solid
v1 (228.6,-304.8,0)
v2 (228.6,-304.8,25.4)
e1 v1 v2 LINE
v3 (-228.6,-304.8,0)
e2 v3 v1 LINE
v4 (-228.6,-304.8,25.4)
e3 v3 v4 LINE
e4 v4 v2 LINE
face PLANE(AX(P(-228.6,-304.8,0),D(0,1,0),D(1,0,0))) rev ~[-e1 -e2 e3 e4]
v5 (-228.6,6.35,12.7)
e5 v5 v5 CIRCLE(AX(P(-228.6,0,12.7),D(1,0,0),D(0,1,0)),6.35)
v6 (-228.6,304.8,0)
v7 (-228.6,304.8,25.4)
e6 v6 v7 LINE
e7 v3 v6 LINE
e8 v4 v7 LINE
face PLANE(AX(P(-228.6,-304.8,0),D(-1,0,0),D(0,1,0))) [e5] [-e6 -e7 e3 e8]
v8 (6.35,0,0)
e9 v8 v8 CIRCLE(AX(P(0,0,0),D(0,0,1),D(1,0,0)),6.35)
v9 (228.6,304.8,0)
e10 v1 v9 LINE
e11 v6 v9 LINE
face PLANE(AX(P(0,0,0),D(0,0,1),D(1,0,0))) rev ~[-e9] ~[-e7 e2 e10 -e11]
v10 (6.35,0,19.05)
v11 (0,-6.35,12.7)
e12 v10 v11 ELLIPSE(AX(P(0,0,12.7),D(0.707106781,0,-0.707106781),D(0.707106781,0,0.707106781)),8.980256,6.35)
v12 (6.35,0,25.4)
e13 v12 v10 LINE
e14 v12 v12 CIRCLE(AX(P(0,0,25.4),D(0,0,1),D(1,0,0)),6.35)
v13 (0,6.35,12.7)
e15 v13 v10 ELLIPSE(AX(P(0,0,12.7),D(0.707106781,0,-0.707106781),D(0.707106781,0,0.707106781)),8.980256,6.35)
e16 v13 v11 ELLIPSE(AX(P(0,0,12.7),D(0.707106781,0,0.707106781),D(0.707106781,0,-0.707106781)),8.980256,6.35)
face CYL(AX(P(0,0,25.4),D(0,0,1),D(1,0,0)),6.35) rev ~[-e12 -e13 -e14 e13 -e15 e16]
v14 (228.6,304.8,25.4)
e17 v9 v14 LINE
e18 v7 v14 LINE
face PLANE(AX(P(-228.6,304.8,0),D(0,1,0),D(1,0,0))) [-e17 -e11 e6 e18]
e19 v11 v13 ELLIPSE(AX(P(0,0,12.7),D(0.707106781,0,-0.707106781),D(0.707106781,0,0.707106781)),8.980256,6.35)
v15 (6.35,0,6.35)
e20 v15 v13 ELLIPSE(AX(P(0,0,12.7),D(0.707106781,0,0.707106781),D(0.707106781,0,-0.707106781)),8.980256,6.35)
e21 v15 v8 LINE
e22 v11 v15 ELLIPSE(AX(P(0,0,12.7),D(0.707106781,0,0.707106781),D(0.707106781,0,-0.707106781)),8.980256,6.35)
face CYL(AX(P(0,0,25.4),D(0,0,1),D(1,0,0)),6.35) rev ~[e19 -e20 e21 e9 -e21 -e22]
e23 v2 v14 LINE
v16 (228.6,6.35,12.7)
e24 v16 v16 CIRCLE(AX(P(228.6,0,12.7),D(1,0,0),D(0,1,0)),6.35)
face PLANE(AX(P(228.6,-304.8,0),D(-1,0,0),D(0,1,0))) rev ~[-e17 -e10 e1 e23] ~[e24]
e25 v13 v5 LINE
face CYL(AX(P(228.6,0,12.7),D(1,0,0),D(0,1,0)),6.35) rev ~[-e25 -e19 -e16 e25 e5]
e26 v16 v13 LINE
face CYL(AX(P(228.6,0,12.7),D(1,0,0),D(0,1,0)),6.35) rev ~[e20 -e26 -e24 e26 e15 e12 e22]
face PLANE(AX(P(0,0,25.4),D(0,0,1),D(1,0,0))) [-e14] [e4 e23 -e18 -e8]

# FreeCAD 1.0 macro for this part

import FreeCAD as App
import Part
import Sketcher
from FreeCAD import Vector
Q = App.Units.Quantity

doc = App.newDocument("Part")
body = doc.addObject("PartDesign::Body", "Body")

# Sketch on XY plane
sketch1 = body.newObject("Sketcher::SketchObject", "Sketch")
sketch1.AttachmentSupport = (doc.getObject("XY_Plane"), [""])
sketch1.MapMode = "FlatFace"
sketch1.addGeometry([
    Part.LineSegment(Vector(-229, 305, 0), Vector(-229, -305, 0)),
    Part.LineSegment(Vector(-229, -305, 0), Vector(229, -305, 0)),
    Part.LineSegment(Vector(229, -305, 0), Vector(229, 305, 0)),
    Part.LineSegment(Vector(229, 305, 0), Vector(-229, 305, 0)),
], False)
sketch1.addConstraint([
    Sketcher.Constraint("Coincident", 0, 2, 1, 1),
    Sketcher.Constraint("Coincident", 1, 2, 2, 1),
    Sketcher.Constraint("Coincident", 2, 2, 3, 1),
    Sketcher.Constraint("Coincident", 3, 2, 0, 1),
    Sketcher.Constraint("Vertical", 0),
    Sketcher.Constraint("Horizontal", 1),
    Sketcher.Constraint("Vertical", 2),
    Sketcher.Constraint("Horizontal", 3),
    Sketcher.Constraint("Symmetric", 0, 2, 2, 2, -1, 1),
    Sketcher.Constraint("DistanceX", 1, 1, 1, 2, Q("18 in")),
    Sketcher.Constraint("DistanceY", 0, 2, 0, 1, Q("24 in")),
])
pad1 = body.newObject("PartDesign::Pad", "Pad")
pad1.Profile = sketch1
pad1.Length = Q("1 in")

# Sketch on YZ plane
sketch2 = body.newObject("Sketcher::SketchObject", "Sketch001")
sketch2.AttachmentSupport = (doc.getObject("YZ_Plane"), [""])
sketch2.MapMode = "FlatFace"
sketch2.AttachmentOffset = App.Placement(Vector(0, 0, 9 * 25.4), App.Rotation())
sketch2.addGeometry(Part.Circle(Vector(0, 13, 0), Vector(0, 0, 1), 6), False)
sketch2.addConstraint([
    Sketcher.Constraint("PointOnObject", 0, 3, -2),
    Sketcher.Constraint("Diameter", 0, Q("0.5 in")),
    Sketcher.Constraint("DistanceY", -1, 1, 0, 3, Q("0.5 in")),
])
pocket1 = body.newObject("PartDesign::Pocket", "Pocket")
pocket1.Profile = sketch2
pocket1.Length = Q("30 in")

# Sketch on XY plane
sketch3 = body.newObject("Sketcher::SketchObject", "Sketch002")
sketch3.AttachmentSupport = (doc.getObject("XY_Plane"), [""])
sketch3.MapMode = "FlatFace"
sketch3.AttachmentOffset = App.Placement(Vector(0, 0, 1 * 25.4), App.Rotation())
sketch3.addGeometry(Part.Circle(Vector(0, 0, 0), Vector(0, 0, 1), 6), False)
sketch3.addConstraint([
    Sketcher.Constraint("Coincident", 0, 3, -1, 1),
    Sketcher.Constraint("Diameter", 0, Q("0.5 in")),
])
pocket2 = body.newObject("PartDesign::Pocket", "Pocket001")
pocket2.Profile = sketch3
pocket2.Length = Q("1 in")

doc.recompute()
